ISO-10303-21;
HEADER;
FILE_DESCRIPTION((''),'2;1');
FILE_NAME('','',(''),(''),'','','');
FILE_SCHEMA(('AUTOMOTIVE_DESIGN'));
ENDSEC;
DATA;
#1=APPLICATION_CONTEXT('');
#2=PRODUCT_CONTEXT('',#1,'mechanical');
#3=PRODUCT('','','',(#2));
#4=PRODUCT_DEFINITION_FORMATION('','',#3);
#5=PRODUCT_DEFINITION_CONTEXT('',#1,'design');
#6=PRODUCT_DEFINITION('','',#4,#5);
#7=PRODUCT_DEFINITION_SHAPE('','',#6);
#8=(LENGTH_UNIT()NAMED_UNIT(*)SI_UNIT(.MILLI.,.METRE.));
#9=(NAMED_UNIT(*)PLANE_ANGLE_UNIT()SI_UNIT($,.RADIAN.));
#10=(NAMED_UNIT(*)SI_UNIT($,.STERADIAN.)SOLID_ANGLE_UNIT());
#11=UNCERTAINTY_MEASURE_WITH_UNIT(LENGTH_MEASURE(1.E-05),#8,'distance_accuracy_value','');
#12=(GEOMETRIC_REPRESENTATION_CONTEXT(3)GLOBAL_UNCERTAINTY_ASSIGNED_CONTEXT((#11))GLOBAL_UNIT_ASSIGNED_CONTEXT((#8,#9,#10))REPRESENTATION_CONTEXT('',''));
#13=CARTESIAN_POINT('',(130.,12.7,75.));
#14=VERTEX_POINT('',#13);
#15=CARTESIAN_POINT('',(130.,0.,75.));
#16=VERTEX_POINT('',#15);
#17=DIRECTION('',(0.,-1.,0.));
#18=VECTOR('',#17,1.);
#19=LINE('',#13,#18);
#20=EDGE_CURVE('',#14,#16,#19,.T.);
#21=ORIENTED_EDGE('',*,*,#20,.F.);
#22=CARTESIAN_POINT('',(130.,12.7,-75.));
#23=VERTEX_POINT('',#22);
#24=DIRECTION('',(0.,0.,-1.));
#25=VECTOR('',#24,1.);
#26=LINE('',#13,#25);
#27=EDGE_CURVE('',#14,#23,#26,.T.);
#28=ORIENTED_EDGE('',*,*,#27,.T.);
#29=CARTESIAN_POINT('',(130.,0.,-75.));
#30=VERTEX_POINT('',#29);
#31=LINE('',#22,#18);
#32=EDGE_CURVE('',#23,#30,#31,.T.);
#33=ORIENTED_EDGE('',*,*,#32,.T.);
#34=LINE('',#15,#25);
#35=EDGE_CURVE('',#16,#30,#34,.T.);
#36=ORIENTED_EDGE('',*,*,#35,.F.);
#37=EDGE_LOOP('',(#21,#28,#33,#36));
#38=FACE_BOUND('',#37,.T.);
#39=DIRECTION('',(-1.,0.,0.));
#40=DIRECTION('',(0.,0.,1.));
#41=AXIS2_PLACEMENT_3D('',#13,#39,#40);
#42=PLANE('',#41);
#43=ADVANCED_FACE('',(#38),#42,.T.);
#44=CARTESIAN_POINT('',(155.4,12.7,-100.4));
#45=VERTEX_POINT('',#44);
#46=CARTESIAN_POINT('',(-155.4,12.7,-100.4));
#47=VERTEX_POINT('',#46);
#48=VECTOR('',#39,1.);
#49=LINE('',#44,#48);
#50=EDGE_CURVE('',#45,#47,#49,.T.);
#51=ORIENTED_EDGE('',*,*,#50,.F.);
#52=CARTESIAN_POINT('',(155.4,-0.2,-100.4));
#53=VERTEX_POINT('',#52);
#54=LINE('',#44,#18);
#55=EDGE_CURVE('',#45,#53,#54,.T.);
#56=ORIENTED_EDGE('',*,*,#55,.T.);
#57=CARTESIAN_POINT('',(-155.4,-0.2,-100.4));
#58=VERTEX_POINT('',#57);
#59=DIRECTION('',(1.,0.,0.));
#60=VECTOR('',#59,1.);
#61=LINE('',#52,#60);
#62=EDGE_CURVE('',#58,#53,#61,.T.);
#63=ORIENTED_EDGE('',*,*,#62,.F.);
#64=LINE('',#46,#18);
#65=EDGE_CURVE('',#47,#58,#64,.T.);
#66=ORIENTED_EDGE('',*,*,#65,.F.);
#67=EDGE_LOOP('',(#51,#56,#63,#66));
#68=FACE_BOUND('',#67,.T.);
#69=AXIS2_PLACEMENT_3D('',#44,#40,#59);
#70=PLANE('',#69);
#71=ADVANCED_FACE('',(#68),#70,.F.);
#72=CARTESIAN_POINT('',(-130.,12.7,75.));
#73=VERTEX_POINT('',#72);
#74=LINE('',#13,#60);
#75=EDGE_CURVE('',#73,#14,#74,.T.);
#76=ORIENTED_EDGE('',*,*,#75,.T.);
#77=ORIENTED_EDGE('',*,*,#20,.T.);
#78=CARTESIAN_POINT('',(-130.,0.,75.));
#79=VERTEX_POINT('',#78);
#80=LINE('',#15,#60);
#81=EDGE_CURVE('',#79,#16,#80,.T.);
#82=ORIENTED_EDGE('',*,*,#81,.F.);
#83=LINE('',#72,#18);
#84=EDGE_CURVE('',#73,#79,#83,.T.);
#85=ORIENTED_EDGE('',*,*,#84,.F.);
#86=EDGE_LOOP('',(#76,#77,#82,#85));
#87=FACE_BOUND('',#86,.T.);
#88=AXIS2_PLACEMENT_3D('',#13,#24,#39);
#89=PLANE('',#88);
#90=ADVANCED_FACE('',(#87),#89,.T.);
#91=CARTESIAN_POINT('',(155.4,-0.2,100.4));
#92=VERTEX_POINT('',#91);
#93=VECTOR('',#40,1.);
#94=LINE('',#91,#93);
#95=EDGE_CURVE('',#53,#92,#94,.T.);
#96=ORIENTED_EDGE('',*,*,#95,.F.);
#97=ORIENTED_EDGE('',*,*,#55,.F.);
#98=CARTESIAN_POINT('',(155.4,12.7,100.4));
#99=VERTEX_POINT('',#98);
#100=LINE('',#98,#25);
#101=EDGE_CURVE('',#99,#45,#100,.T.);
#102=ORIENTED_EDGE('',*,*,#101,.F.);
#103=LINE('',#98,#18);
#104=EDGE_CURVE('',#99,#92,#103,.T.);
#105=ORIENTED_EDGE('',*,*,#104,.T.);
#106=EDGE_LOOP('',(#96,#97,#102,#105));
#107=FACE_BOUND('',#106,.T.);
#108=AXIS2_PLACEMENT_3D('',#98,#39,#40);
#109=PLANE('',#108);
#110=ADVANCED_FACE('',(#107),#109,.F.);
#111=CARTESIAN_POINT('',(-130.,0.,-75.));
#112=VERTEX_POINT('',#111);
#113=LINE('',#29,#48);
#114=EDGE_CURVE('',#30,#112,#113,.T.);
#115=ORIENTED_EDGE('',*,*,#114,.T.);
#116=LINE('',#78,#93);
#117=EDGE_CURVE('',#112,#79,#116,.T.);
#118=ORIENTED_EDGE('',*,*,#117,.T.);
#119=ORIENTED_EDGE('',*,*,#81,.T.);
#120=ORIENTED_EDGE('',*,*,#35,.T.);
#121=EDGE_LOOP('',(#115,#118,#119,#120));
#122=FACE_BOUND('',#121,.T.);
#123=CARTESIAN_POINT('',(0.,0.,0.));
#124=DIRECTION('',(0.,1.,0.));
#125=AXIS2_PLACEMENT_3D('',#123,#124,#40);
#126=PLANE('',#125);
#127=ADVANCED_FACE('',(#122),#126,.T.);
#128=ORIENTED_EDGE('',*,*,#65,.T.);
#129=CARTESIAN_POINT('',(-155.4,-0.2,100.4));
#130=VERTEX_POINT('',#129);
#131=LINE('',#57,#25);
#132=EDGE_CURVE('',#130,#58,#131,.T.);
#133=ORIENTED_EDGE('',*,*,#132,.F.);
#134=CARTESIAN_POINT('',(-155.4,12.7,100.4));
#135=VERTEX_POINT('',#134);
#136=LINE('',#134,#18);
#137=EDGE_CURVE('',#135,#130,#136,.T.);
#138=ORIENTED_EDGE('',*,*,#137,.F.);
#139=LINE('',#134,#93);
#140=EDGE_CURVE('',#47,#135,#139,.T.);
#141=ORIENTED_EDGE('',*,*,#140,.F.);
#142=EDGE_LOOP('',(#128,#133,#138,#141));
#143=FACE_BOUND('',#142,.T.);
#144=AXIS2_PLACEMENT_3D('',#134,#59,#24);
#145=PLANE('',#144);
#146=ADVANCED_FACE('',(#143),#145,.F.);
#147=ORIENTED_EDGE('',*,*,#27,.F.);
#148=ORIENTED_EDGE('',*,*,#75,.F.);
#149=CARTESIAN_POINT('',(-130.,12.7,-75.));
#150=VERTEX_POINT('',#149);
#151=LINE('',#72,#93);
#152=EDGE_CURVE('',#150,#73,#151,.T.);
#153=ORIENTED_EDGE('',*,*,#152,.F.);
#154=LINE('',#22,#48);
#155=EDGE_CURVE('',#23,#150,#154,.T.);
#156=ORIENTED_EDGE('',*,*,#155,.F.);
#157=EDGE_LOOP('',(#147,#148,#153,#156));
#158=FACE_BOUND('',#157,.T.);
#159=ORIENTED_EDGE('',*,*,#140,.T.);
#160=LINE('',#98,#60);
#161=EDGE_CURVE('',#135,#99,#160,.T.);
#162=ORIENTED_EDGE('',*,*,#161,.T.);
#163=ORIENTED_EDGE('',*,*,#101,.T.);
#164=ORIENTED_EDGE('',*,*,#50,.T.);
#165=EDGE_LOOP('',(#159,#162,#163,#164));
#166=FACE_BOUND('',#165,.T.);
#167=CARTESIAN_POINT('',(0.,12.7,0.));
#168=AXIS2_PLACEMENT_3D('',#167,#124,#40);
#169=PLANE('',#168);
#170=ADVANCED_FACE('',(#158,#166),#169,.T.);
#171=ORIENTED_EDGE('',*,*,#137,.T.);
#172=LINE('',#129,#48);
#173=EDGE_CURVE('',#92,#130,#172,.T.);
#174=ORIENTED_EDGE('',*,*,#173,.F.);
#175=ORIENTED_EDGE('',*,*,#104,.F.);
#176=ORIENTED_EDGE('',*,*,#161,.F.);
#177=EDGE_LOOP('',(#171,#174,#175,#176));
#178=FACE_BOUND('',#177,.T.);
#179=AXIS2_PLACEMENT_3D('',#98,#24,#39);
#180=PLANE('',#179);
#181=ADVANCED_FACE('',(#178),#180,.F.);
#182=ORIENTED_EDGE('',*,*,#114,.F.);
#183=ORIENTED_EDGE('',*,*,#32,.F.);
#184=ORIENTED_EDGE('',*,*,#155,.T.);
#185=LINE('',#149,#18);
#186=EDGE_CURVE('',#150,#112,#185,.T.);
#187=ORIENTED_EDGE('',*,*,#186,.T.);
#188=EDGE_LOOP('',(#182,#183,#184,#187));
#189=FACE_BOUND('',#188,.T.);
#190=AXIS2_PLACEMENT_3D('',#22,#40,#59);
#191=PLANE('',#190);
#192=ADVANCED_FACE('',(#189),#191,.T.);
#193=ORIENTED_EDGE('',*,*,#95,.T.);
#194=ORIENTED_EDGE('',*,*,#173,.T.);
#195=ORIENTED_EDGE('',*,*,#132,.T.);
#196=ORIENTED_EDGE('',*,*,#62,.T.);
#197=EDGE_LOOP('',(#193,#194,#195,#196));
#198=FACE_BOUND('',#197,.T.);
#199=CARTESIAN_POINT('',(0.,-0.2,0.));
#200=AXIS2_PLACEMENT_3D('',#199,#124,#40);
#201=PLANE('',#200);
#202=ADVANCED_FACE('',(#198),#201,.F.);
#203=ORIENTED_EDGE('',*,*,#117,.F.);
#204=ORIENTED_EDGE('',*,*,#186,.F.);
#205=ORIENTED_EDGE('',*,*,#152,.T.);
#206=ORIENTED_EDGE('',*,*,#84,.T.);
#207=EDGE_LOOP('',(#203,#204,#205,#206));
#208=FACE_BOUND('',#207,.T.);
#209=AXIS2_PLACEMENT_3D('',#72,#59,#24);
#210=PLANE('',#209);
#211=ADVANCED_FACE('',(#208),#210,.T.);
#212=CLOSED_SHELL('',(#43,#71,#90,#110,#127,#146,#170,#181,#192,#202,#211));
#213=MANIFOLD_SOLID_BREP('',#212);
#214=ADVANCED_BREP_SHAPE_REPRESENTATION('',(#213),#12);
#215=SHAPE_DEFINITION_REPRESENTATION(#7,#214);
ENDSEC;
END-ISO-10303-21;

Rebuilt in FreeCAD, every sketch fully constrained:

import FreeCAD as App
import Part
import Sketcher
from FreeCAD import Vector
Q = App.Units.Quantity


def add_polygon(sketch, points):
    """Adds a closed chain of lines whose ends are joined by coincident constraints."""
    first, n = sketch.GeometryCount, len(points)
    for a, b in zip(points, points[1:] + points[:1]):
        sketch.addGeometry(Part.LineSegment(App.Vector(*a, 0), App.Vector(*b, 0)), False)
    for i in range(n):
        sketch.addConstraint(Sketcher.Constraint("Coincident", first + i, 2, first + (i + 1) % n, 1))

doc = App.newDocument("Part")
body = doc.addObject("PartDesign::Body", "Body")

# Sketch on XZ plane
sketch1 = body.newObject("Sketcher::SketchObject", "Sketch")
sketch1.AttachmentSupport = (doc.getObject("XZ_Plane"), [""])
sketch1.MapMode = "FlatFace"
add_polygon(sketch1, [(-155.4, -100.4), (-155.4, 100.4), (155.4, 100.4), (155.4, -100.4)])  # lines 0-3
add_polygon(sketch1, [(130, 75), (-130, 75), (-130, -75), (130, -75)])  # lines 4-7
sketch1.addConstraint([
    Sketcher.Constraint("Vertical", 0),
    Sketcher.Constraint("Horizontal", 1),
    Sketcher.Constraint("Vertical", 2),
    Sketcher.Constraint("Horizontal", 3),
    Sketcher.Constraint("Horizontal", 4),
    Sketcher.Constraint("Vertical", 5),
    Sketcher.Constraint("Horizontal", 6),
    Sketcher.Constraint("Vertical", 7),
    Sketcher.Constraint("Symmetric", 0, 2, 2, 2, -1, 1),
    Sketcher.Constraint("Symmetric", 4, 2, 6, 2, -1, 1),
    Sketcher.Constraint("DistanceX", 4, 2, 4, 1, Q("260 mm")),
    Sketcher.Constraint("DistanceY", 5, 2, 5, 1, Q("150 mm")),
    Sketcher.Constraint("DistanceX", 1, 1, 1, 2, Q("310.8 mm")),
    Sketcher.Constraint("DistanceY", 0, 1, 0, 2, Q("200.8 mm")),
])
pad1 = body.newObject("PartDesign::Pad", "Pad")
pad1.Profile = sketch1
pad1.Length = 12.7
pad1.Reversed = True

# Sketch on XZ plane
sketch2 = body.newObject("Sketcher::SketchObject", "Sketch001")
sketch2.AttachmentSupport = (doc.getObject("XZ_Plane"), [""])
sketch2.MapMode = "FlatFace"
add_polygon(sketch2, [(-155.4, 100.4), (-155.4, -100.4), (155.4, -100.4), (155.4, 100.4)])  # lines 0-3
sketch2.addConstraint([
    Sketcher.Constraint("Vertical", 0),
    Sketcher.Constraint("Horizontal", 1),
    Sketcher.Constraint("Vertical", 2),
    Sketcher.Constraint("Horizontal", 3),
    Sketcher.Constraint("Symmetric", 0, 2, 2, 2, -1, 1),
    Sketcher.Constraint("DistanceX", 1, 1, 1, 2, Q("310.8 mm")),
    Sketcher.Constraint("DistanceY", 0, 2, 0, 1, Q("200.8 mm")),
])
pad2 = body.newObject("PartDesign::Pad", "Pad001")
pad2.Profile = sketch2
pad2.Length = 0.2

doc.recompute()
